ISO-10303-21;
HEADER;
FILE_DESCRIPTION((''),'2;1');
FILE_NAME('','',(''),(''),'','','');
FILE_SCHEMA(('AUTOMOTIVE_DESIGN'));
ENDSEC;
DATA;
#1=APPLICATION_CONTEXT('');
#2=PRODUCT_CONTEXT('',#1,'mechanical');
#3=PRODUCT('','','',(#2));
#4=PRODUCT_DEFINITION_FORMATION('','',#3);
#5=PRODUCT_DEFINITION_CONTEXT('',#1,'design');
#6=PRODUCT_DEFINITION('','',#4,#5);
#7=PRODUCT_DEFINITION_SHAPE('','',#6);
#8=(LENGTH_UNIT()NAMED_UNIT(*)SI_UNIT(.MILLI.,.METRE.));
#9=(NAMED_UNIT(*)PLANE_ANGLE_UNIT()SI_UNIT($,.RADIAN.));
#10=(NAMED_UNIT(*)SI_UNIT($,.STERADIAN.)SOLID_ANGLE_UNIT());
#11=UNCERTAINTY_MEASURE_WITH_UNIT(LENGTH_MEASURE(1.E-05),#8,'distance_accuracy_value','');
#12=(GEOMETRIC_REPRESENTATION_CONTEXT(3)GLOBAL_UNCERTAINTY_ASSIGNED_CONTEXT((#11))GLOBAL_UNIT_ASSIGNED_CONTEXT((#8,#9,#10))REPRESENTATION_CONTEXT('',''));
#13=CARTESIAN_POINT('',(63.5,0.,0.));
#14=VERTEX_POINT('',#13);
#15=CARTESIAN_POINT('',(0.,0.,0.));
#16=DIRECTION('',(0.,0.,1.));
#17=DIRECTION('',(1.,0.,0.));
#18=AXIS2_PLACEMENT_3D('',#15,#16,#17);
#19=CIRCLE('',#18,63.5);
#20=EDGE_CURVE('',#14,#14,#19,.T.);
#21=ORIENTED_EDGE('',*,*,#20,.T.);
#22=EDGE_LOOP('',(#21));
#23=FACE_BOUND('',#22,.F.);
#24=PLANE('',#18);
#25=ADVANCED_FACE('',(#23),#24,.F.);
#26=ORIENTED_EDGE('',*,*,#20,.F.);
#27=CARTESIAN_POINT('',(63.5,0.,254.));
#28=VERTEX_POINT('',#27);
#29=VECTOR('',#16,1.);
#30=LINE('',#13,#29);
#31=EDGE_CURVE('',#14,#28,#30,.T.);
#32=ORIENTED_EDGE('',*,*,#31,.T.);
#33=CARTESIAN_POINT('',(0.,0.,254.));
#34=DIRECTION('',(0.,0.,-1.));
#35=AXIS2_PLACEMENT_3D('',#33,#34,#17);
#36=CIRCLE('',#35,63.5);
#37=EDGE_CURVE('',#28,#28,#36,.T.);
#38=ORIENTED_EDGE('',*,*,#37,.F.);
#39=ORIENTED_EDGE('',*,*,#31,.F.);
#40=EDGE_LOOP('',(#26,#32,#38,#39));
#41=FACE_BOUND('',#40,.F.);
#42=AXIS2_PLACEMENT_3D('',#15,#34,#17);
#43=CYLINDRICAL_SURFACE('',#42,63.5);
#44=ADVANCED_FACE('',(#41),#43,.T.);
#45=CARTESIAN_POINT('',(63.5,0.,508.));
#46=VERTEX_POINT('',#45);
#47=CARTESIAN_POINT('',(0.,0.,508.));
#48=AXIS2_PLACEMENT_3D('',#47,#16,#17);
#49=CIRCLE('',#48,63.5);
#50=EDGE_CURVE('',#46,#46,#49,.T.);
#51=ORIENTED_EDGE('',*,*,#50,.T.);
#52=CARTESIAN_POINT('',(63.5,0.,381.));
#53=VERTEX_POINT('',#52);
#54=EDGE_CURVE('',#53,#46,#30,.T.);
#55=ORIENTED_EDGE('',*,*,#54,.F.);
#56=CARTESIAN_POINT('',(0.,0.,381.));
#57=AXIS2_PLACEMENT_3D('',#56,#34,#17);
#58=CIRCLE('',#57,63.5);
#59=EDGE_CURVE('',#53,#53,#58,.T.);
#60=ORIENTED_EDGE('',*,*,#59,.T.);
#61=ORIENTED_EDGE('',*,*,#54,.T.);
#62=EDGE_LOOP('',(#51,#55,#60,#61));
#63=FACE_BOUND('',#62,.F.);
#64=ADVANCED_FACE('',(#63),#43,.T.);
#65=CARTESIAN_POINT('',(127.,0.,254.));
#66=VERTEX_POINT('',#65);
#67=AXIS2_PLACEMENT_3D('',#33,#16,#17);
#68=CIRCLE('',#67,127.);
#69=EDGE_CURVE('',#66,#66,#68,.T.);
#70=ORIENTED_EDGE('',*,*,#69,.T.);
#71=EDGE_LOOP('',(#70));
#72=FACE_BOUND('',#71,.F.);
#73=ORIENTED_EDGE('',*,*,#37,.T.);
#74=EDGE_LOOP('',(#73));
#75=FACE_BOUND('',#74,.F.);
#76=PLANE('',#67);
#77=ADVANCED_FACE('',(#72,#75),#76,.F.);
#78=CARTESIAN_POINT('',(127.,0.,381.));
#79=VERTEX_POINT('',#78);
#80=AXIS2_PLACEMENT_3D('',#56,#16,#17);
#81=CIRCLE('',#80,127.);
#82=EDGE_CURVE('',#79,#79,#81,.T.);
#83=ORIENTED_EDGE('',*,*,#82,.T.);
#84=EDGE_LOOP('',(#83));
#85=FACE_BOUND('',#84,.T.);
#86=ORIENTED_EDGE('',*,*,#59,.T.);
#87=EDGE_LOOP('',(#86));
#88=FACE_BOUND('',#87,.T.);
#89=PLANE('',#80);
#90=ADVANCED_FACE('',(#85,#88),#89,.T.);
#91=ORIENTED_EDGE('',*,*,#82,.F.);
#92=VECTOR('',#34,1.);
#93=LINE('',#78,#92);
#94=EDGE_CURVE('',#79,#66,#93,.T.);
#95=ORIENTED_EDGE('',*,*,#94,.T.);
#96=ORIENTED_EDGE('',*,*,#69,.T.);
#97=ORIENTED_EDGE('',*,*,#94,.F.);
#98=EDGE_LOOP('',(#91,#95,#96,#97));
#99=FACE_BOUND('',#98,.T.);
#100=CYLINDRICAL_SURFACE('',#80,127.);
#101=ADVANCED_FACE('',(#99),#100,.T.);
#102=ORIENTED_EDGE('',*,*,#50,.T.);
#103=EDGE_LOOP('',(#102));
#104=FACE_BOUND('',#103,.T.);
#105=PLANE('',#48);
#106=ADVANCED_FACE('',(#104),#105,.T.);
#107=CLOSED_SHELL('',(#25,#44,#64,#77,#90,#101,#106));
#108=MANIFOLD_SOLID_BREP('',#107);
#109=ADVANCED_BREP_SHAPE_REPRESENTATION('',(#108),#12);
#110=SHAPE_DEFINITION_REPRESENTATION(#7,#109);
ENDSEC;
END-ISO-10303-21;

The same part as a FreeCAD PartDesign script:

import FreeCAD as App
import Part
import Sketcher
from FreeCAD import Vector
Q = App.Units.Quantity

doc = App.newDocument("Part")
params = doc.addObject("Spreadsheet::Sheet", "Params")
for row, (alias, value) in enumerate([
    ("sketch1_diameter", "5 in"),
    ("pad1_length", "20 in"),
    ("sketch2_diameter", "10 in"),
    ("pad2_length", "5 in"),
], start=1):
    params.set(f"A{row}", alias)
    params.set(f"B{row}", "=" + value)
    params.setAlias(f"B{row}", alias)

body = doc.addObject("PartDesign::Body", "Body")

# Sketch on XY plane
sketch1 = body.newObject("Sketcher::SketchObject", "Sketch")
sketch1.AttachmentSupport = (doc.getObject("XY_Plane"), [""])
sketch1.MapMode = "FlatFace"
sketch1.addGeometry(Part.Circle(Vector(0, 0, 0), Vector(0, 0, 1), 64), False)
sketch1.addConstraint([
    Sketcher.Constraint("Coincident", 0, 3, -1, 1),
    Sketcher.Constraint("Diameter", 0, Q("5 in")),
])
sketch1.setExpression("Constraints[1]", "Params.sketch1_diameter")
pad1 = body.newObject("PartDesign::Pad", "Pad")
pad1.Profile = sketch1
pad1.setExpression("Length", "Params.pad1_length")

# Sketch on XY plane
sketch2 = body.newObject("Sketcher::SketchObject", "Sketch001")
sketch2.AttachmentSupport = (doc.getObject("XY_Plane"), [""])
sketch2.MapMode = "FlatFace"
sketch2.AttachmentOffset = App.Placement(Vector(0, 0, 15 * 25.4), App.Rotation())
sketch2.addGeometry(Part.Circle(Vector(0, 0, 0), Vector(0, 0, 1), 127), False)
sketch2.addConstraint([
    Sketcher.Constraint("Coincident", 0, 3, -1, 1),
    Sketcher.Constraint("Diameter", 0, Q("10 in")),
])
sketch2.setExpression("Constraints[1]", "Params.sketch2_diameter")
pad2 = body.newObject("PartDesign::Pad", "Pad001")
pad2.Profile = sketch2
pad2.setExpression("Length", "Params.pad2_length")
pad2.Reversed = True

doc.recompute()
